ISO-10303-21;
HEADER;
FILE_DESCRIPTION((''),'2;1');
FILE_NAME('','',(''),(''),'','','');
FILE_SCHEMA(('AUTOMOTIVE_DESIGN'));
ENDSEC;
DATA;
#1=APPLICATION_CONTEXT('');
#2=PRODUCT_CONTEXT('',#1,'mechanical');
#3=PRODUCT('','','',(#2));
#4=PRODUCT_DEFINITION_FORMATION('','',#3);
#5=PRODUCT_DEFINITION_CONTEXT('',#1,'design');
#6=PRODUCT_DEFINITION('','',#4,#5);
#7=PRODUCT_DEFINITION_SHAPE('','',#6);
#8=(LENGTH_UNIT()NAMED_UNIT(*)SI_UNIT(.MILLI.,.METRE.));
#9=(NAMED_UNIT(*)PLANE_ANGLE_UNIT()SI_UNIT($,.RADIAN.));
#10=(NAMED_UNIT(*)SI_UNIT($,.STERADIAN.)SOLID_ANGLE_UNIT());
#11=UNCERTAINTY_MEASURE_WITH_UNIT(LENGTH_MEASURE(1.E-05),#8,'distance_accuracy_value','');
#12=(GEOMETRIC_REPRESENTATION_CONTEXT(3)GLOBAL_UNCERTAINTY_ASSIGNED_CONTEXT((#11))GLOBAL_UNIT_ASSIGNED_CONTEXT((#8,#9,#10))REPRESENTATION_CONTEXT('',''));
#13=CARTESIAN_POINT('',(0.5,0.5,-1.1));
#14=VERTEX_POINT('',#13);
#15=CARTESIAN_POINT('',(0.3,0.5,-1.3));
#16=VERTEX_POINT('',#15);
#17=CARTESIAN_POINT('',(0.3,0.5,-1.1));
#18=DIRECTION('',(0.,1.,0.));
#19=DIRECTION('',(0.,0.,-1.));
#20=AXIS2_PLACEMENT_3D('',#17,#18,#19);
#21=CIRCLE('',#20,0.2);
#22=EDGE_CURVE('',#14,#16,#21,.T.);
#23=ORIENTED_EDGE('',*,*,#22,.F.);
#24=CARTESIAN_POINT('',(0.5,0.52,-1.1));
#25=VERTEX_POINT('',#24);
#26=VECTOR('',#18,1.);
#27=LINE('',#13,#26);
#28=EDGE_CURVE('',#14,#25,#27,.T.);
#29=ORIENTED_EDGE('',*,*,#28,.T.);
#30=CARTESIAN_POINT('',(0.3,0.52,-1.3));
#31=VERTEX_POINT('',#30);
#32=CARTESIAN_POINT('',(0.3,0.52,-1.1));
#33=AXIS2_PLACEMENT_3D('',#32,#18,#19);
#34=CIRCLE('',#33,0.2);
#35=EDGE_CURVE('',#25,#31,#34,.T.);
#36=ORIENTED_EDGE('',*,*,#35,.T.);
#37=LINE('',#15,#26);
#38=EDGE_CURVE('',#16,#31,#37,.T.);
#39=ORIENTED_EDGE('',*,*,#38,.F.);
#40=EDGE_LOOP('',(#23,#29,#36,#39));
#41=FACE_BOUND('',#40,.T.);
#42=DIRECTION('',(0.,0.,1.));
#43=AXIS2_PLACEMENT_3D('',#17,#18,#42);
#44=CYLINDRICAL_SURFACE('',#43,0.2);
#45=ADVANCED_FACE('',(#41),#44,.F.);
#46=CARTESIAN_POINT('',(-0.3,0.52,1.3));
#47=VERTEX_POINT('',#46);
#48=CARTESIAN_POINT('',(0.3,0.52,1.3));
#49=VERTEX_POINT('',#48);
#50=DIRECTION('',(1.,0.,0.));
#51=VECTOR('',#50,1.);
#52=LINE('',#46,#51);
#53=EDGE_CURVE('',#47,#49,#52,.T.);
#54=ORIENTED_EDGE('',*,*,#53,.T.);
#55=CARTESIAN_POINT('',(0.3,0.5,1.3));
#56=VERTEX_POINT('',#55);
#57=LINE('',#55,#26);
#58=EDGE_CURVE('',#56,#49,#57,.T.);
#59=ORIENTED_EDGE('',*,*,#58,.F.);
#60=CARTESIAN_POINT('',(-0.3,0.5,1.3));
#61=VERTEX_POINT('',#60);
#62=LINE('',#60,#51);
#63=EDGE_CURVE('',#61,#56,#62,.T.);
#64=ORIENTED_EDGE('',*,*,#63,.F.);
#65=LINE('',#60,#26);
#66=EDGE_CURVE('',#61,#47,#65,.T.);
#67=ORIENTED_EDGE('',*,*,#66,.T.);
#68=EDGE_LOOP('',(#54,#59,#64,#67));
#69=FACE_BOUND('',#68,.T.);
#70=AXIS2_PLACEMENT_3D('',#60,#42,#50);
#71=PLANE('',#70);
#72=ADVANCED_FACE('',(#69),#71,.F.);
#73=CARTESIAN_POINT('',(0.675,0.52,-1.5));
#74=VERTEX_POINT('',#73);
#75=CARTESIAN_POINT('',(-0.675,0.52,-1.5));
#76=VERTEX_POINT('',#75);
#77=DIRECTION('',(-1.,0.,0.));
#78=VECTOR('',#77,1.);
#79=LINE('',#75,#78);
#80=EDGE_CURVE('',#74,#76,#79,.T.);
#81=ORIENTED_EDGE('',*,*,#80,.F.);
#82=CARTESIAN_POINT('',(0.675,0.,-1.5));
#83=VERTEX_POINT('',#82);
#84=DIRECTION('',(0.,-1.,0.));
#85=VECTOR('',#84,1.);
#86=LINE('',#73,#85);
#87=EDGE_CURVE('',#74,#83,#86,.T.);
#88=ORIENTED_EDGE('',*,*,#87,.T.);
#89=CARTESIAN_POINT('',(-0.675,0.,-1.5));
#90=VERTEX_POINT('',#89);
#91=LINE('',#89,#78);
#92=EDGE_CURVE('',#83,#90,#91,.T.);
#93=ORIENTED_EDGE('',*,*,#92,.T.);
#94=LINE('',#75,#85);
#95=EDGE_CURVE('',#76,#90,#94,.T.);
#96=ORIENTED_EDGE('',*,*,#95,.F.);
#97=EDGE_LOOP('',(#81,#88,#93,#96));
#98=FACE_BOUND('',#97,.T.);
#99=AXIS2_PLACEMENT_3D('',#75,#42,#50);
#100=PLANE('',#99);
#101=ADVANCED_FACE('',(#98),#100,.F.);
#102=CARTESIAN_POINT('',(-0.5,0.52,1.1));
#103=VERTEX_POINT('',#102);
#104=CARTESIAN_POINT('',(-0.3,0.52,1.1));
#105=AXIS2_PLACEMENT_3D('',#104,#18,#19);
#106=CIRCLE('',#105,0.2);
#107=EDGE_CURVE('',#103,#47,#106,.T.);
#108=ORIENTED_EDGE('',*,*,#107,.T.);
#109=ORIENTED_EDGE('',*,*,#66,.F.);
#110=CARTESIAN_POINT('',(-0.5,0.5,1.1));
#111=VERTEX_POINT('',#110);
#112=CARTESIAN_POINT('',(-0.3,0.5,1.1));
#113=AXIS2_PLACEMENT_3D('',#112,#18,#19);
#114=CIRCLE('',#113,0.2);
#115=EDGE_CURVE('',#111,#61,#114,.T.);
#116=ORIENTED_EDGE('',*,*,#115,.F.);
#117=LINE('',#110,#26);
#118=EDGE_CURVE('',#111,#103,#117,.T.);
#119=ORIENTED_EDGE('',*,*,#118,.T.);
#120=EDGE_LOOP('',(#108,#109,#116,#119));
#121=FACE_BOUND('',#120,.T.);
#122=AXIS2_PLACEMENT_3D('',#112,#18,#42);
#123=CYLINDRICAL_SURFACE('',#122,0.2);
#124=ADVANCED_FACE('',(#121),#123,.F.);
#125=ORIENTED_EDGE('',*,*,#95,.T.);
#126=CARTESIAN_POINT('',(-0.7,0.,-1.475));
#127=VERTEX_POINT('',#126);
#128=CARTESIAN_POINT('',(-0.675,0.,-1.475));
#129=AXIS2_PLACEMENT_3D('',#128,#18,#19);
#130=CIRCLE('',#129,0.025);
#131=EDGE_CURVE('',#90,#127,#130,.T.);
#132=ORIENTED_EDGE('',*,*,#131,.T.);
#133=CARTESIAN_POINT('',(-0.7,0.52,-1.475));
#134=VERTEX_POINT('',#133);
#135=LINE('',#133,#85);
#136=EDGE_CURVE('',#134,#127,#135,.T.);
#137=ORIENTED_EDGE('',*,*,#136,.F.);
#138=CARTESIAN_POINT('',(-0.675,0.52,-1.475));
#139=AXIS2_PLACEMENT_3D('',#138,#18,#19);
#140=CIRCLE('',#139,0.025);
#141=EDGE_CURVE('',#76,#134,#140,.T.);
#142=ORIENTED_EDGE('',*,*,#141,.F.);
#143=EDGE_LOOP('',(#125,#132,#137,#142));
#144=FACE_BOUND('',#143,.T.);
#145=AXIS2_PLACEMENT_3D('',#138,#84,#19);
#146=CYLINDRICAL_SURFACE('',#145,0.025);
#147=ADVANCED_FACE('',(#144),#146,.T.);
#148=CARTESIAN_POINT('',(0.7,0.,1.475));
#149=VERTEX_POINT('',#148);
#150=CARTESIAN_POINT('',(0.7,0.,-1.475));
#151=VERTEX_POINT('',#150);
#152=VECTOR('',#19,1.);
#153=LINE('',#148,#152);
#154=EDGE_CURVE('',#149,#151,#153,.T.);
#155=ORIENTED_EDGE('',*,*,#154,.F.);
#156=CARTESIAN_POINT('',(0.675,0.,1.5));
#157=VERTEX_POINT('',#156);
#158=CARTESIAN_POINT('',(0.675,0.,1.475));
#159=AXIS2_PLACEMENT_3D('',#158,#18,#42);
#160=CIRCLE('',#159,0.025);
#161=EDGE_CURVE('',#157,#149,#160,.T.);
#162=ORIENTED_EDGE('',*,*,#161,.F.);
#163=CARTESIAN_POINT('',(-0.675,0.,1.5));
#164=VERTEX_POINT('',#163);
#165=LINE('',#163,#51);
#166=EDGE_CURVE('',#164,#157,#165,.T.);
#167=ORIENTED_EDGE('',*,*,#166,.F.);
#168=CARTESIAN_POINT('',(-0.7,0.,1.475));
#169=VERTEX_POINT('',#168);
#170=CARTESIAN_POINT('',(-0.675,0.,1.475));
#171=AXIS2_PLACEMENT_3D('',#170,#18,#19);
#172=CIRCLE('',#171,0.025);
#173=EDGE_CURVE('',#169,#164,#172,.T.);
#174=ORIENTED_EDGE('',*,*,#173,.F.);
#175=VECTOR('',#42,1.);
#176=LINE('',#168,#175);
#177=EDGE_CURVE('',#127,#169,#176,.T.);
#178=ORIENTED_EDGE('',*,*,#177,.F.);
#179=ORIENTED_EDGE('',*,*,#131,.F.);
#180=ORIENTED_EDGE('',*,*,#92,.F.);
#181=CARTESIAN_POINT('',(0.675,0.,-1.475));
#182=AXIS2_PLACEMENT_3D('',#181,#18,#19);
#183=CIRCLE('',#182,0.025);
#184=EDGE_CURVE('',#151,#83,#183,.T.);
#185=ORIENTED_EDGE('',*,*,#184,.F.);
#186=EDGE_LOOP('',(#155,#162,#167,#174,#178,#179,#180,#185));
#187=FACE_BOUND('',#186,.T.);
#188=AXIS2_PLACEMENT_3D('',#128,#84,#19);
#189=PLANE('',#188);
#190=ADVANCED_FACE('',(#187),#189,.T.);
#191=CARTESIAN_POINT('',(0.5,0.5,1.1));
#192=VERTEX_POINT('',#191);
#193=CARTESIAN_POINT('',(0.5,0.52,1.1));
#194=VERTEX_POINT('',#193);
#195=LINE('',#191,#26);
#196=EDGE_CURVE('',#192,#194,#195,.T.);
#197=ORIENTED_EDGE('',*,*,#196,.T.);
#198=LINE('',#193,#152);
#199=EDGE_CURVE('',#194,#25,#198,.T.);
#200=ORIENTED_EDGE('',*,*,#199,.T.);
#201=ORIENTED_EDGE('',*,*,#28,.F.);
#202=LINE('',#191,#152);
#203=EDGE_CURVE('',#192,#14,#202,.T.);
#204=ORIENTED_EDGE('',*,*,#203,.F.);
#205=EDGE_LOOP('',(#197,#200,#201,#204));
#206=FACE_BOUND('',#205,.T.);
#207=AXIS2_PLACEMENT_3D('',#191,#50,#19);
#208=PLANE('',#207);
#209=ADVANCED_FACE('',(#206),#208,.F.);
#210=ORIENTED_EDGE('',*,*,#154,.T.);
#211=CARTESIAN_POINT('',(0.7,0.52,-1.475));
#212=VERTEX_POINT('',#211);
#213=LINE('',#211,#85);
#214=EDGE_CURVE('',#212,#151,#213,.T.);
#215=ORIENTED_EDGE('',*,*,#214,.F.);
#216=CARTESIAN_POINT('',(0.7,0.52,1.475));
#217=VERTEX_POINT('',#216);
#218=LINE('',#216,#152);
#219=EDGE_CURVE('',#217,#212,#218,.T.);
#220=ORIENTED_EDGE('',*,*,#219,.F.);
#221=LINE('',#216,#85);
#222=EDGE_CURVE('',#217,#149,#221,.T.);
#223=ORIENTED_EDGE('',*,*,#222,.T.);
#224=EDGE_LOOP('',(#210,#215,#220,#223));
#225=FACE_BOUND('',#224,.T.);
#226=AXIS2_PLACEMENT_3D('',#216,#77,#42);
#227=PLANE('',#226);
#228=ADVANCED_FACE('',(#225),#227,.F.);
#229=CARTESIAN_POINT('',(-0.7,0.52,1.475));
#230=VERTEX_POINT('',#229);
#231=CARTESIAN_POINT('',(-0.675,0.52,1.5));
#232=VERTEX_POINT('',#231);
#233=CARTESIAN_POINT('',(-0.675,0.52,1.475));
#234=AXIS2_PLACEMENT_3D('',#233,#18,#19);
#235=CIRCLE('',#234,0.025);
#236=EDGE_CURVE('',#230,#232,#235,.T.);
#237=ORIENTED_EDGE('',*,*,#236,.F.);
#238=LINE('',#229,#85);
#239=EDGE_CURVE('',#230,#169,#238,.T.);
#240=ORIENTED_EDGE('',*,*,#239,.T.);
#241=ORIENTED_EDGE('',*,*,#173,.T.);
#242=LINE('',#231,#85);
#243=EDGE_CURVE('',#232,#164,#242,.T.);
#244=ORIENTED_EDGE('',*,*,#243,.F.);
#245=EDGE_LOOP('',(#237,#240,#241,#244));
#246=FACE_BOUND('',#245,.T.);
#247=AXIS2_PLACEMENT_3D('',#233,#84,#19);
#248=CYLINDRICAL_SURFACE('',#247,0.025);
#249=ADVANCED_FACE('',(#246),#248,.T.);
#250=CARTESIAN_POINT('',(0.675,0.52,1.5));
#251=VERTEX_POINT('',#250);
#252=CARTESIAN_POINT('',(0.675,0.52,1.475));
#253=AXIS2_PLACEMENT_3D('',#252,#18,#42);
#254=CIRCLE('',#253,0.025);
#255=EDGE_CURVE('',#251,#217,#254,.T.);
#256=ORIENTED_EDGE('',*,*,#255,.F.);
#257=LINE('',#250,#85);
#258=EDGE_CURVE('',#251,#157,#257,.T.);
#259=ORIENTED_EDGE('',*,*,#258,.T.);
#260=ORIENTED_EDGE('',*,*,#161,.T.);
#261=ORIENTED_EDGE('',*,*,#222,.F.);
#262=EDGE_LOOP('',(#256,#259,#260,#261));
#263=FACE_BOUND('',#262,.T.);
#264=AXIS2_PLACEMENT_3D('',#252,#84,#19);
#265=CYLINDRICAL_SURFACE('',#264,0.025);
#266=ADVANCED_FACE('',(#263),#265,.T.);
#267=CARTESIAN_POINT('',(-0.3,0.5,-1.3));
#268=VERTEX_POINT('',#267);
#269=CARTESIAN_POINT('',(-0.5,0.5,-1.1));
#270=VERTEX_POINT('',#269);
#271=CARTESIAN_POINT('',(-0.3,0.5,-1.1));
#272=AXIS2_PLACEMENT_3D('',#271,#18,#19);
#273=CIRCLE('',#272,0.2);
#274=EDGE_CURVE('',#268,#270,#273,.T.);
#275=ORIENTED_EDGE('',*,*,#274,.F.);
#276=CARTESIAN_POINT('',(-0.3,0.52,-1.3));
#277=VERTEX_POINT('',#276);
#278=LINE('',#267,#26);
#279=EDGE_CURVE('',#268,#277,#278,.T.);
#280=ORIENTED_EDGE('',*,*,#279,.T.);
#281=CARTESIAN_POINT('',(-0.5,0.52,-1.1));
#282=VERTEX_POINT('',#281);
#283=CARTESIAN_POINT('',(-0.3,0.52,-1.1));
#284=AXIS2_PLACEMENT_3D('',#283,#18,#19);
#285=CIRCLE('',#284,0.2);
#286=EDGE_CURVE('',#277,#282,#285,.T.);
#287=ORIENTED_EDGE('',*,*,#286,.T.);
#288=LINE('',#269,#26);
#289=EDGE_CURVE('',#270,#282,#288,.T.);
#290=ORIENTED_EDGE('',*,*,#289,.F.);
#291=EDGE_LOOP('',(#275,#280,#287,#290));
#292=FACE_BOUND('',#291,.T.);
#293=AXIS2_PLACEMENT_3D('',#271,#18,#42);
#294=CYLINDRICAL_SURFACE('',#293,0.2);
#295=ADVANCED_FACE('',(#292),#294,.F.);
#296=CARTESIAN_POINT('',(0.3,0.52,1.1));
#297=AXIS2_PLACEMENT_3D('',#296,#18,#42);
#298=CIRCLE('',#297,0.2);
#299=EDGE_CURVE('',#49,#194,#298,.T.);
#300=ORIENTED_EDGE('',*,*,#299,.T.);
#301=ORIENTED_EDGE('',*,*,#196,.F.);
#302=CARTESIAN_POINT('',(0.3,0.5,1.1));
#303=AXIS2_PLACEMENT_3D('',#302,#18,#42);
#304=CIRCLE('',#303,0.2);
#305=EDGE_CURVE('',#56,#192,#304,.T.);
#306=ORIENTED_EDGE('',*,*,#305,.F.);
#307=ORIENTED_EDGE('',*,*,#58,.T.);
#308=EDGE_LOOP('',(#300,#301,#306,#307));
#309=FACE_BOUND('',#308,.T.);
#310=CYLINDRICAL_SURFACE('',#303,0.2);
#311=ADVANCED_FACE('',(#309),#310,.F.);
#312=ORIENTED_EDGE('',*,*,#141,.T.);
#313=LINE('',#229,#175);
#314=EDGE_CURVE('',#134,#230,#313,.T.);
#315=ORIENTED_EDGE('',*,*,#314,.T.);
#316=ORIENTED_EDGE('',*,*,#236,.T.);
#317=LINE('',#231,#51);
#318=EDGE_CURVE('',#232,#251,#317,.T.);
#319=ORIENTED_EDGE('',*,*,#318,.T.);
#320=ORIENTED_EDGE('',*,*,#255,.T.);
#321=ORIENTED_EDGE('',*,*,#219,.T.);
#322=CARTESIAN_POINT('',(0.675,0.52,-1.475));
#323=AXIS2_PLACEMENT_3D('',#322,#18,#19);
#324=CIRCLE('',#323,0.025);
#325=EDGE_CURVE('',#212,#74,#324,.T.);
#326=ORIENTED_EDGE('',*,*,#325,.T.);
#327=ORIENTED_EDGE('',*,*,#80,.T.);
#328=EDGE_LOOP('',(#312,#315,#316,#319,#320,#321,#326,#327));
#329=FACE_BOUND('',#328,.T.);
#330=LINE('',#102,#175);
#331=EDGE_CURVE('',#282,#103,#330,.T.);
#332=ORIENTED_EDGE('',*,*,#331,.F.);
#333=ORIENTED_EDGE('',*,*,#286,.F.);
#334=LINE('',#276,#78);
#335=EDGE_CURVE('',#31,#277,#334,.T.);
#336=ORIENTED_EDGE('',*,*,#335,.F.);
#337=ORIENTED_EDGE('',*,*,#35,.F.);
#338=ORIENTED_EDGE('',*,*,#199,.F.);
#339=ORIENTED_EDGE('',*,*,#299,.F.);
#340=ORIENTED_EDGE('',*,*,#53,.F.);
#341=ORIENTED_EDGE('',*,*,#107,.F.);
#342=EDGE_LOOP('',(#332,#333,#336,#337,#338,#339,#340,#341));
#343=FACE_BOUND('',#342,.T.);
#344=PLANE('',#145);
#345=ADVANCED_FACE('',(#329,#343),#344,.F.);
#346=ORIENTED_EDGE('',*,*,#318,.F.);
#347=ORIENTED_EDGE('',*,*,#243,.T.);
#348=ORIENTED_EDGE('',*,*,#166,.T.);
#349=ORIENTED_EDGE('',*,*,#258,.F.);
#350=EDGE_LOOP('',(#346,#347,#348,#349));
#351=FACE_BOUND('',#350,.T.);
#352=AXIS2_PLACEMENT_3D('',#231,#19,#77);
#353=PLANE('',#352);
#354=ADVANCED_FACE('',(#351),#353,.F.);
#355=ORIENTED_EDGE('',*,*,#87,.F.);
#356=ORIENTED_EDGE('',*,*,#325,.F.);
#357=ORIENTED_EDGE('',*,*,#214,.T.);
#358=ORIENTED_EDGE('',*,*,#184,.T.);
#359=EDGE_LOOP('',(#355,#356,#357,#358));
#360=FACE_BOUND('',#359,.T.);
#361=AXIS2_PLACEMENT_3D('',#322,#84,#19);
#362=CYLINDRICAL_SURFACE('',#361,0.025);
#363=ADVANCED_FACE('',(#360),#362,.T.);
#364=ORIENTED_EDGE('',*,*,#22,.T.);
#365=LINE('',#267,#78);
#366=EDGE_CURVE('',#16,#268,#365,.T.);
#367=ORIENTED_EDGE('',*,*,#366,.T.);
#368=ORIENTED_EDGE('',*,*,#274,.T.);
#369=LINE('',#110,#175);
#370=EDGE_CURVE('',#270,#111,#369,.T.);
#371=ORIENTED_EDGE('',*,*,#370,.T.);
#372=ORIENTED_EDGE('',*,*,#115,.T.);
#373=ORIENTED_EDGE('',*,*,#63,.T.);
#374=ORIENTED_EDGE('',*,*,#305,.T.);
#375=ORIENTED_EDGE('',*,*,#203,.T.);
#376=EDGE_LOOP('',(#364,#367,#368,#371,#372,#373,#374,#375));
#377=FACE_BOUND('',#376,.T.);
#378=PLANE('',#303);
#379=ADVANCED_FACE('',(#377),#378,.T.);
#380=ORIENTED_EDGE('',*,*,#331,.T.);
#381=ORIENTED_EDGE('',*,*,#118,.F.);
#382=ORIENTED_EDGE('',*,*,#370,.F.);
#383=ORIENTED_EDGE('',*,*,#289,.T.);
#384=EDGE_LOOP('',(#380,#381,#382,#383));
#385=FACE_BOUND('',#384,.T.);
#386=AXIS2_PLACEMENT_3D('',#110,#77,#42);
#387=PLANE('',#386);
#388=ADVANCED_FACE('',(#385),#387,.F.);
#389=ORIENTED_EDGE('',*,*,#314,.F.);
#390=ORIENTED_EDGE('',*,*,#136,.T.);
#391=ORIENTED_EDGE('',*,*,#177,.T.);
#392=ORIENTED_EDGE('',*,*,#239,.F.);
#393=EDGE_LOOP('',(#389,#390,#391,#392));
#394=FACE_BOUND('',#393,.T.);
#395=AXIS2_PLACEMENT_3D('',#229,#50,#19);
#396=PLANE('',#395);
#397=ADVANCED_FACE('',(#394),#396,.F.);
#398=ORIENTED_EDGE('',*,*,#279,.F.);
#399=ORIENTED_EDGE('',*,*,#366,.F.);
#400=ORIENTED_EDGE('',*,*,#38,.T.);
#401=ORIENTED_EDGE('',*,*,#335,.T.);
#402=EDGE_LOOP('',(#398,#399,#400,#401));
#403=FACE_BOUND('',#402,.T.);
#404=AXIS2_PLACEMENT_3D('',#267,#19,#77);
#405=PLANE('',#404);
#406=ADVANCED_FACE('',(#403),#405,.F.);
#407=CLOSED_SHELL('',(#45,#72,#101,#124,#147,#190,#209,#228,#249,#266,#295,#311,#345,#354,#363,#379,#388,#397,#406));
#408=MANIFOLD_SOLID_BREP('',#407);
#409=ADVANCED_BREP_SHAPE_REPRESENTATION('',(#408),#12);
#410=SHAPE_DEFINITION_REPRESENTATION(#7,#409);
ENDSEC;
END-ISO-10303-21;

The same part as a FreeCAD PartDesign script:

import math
import FreeCAD as App
import Part
import Sketcher
from FreeCAD import Vector
Q = App.Units.Quantity

doc = App.newDocument("Part")
body = doc.addObject("PartDesign::Body", "Body")

# Sketch on XZ plane
sketch1 = body.newObject("Sketcher::SketchObject", "Sketch")
sketch1.AttachmentSupport = (doc.getObject("XZ_Plane"), [""])
sketch1.MapMode = "FlatFace"
sketch1.addGeometry(Part.LineSegment(Vector(-0.675, 1.5, 0), Vector(0.675, 1.5, 0)), False)
sketch1.addGeometry(Part.ArcOfCircle(Part.Circle(Vector(0.675, 1.475, 0), Vector(0, 0, 1), 0.025), math.radians(-0.000005), math.radians(90.000005)), False)
sketch1.addGeometry(Part.LineSegment(Vector(0.7, 1.475, 0), Vector(0.7, -1.475, 0)), False)
sketch1.addGeometry(Part.ArcOfCircle(Part.Circle(Vector(0.675, -1.475, 0), Vector(0, 0, 1), 0.025), math.radians(-90.000005), math.radians(0.000005)), False)
sketch1.addGeometry(Part.LineSegment(Vector(0.675, -1.5, 0), Vector(-0.675, -1.5, 0)), False)
sketch1.addGeometry(Part.ArcOfCircle(Part.Circle(Vector(-0.675, -1.475, 0), Vector(0, 0, 1), 0.025), math.radians(179.999995), math.radians(270.000005)), False)
sketch1.addGeometry(Part.LineSegment(Vector(-0.7, -1.475, 0), Vector(-0.7, 1.475, 0)), False)
sketch1.addGeometry(Part.ArcOfCircle(Part.Circle(Vector(-0.675, 1.475, 0), Vector(0, 0, 1), 0.025), math.radians(89.999995), math.radians(180.000005)), False)
sketch1.addConstraint(Sketcher.Constraint("Tangent", 0, 2, 1, 2))
sketch1.addConstraint(Sketcher.Constraint("Tangent", 1, 1, 2, 1))
sketch1.addConstraint(Sketcher.Constraint("Tangent", 2, 2, 3, 2))
sketch1.addConstraint(Sketcher.Constraint("Tangent", 3, 1, 4, 1))
sketch1.addConstraint(Sketcher.Constraint("Tangent", 4, 2, 5, 2))
sketch1.addConstraint(Sketcher.Constraint("Tangent", 5, 1, 6, 1))
sketch1.addConstraint(Sketcher.Constraint("Tangent", 6, 2, 7, 2))
sketch1.addConstraint(Sketcher.Constraint("Tangent", 7, 1, 0, 1))
sketch1.addConstraint(Sketcher.Constraint("Horizontal", 0))
sketch1.addConstraint(Sketcher.Constraint("Vertical", 2))
sketch1.addConstraint(Sketcher.Constraint("Horizontal", 4))
sketch1.addConstraint(Sketcher.Constraint("Vertical", 6))
sketch1.addConstraint(Sketcher.Constraint("Equal", 1, 3))
sketch1.addConstraint(Sketcher.Constraint("Equal", 3, 5))
sketch1.addConstraint(Sketcher.Constraint("Equal", 5, 7))
sketch1.addConstraint(Sketcher.Constraint("Symmetric", 1, 3, 5, 3, -1, 1))
sketch1.addConstraint(Sketcher.Constraint("Radius", 1, Q("0.025 mm")))
sketch1.addConstraint(Sketcher.Constraint("DistanceX", 0, 1, 0, 2, Q("1.35 mm")))
sketch1.addConstraint(Sketcher.Constraint("DistanceY", 2, 2, 2, 1, Q("2.95 mm")))
pad1 = body.newObject("PartDesign::Pad", "Pad")
pad1.Profile = sketch1
pad1.Length = 0.52
pad1.Reversed = True

# Sketch on XZ plane
sketch2 = body.newObject("Sketcher::SketchObject", "Sketch001")
sketch2.AttachmentSupport = (doc.getObject("XZ_Plane"), [""])
sketch2.MapMode = "FlatFace"
sketch2.AttachmentOffset = App.Placement(Vector(0, 0, -0.52), App.Rotation())
sketch2.addGeometry(Part.LineSegment(Vector(-0.3, 1.3, 0), Vector(0.3, 1.3, 0)), False)
sketch2.addGeometry(Part.ArcOfCircle(Part.Circle(Vector(0.3, 1.1, 0), Vector(0, 0, 1), 0.2), math.radians(0), math.radians(90)), False)
sketch2.addGeometry(Part.LineSegment(Vector(0.5, 1.1, 0), Vector(0.5, -1.1, 0)), False)
sketch2.addGeometry(Part.ArcOfCircle(Part.Circle(Vector(0.3, -1.1, 0), Vector(0, 0, 1), 0.2), math.radians(-90), math.radians(0)), False)
sketch2.addGeometry(Part.LineSegment(Vector(0.3, -1.3, 0), Vector(-0.3, -1.3, 0)), False)
sketch2.addGeometry(Part.ArcOfCircle(Part.Circle(Vector(-0.3, -1.1, 0), Vector(0, 0, 1), 0.2), math.radians(-180), math.radians(-90)), False)
sketch2.addGeometry(Part.LineSegment(Vector(-0.5, -1.1, 0), Vector(-0.5, 1.1, 0)), False)
sketch2.addGeometry(Part.ArcOfCircle(Part.Circle(Vector(-0.3, 1.1, 0), Vector(0, 0, 1), 0.2), math.radians(90), math.radians(180)), False)
sketch2.addConstraint(Sketcher.Constraint("Tangent", 0, 2, 1, 2))
sketch2.addConstraint(Sketcher.Constraint("Tangent", 1, 1, 2, 1))
sketch2.addConstraint(Sketcher.Constraint("Tangent", 2, 2, 3, 2))
sketch2.addConstraint(Sketcher.Constraint("Tangent", 3, 1, 4, 1))
sketch2.addConstraint(Sketcher.Constraint("Tangent", 4, 2, 5, 2))
sketch2.addConstraint(Sketcher.Constraint("Tangent", 5, 1, 6, 1))
sketch2.addConstraint(Sketcher.Constraint("Tangent", 6, 2, 7, 2))
sketch2.addConstraint(Sketcher.Constraint("Tangent", 7, 1, 0, 1))
sketch2.addConstraint(Sketcher.Constraint("Horizontal", 0))
sketch2.addConstraint(Sketcher.Constraint("Vertical", 2))
sketch2.addConstraint(Sketcher.Constraint("Horizontal", 4))
sketch2.addConstraint(Sketcher.Constraint("Vertical", 6))
sketch2.addConstraint(Sketcher.Constraint("Equal", 1, 3))
sketch2.addConstraint(Sketcher.Constraint("Equal", 3, 5))
sketch2.addConstraint(Sketcher.Constraint("Equal", 5, 7))
sketch2.addConstraint(Sketcher.Constraint("Symmetric", 1, 3, 5, 3, -1, 1))
sketch2.addConstraint(Sketcher.Constraint("Radius", 1, Q("0.2 mm")))
sketch2.addConstraint(Sketcher.Constraint("DistanceX", 0, 1, 0, 2, Q("0.6 mm")))
sketch2.addConstraint(Sketcher.Constraint("DistanceY", 2, 2, 2, 1, Q("2.2 mm")))
pocket1 = body.newObject("PartDesign::Pocket", "Pocket")
pocket1.Profile = sketch2
pocket1.Length = 0.02
pocket1.Reversed = True

doc.recompute()
